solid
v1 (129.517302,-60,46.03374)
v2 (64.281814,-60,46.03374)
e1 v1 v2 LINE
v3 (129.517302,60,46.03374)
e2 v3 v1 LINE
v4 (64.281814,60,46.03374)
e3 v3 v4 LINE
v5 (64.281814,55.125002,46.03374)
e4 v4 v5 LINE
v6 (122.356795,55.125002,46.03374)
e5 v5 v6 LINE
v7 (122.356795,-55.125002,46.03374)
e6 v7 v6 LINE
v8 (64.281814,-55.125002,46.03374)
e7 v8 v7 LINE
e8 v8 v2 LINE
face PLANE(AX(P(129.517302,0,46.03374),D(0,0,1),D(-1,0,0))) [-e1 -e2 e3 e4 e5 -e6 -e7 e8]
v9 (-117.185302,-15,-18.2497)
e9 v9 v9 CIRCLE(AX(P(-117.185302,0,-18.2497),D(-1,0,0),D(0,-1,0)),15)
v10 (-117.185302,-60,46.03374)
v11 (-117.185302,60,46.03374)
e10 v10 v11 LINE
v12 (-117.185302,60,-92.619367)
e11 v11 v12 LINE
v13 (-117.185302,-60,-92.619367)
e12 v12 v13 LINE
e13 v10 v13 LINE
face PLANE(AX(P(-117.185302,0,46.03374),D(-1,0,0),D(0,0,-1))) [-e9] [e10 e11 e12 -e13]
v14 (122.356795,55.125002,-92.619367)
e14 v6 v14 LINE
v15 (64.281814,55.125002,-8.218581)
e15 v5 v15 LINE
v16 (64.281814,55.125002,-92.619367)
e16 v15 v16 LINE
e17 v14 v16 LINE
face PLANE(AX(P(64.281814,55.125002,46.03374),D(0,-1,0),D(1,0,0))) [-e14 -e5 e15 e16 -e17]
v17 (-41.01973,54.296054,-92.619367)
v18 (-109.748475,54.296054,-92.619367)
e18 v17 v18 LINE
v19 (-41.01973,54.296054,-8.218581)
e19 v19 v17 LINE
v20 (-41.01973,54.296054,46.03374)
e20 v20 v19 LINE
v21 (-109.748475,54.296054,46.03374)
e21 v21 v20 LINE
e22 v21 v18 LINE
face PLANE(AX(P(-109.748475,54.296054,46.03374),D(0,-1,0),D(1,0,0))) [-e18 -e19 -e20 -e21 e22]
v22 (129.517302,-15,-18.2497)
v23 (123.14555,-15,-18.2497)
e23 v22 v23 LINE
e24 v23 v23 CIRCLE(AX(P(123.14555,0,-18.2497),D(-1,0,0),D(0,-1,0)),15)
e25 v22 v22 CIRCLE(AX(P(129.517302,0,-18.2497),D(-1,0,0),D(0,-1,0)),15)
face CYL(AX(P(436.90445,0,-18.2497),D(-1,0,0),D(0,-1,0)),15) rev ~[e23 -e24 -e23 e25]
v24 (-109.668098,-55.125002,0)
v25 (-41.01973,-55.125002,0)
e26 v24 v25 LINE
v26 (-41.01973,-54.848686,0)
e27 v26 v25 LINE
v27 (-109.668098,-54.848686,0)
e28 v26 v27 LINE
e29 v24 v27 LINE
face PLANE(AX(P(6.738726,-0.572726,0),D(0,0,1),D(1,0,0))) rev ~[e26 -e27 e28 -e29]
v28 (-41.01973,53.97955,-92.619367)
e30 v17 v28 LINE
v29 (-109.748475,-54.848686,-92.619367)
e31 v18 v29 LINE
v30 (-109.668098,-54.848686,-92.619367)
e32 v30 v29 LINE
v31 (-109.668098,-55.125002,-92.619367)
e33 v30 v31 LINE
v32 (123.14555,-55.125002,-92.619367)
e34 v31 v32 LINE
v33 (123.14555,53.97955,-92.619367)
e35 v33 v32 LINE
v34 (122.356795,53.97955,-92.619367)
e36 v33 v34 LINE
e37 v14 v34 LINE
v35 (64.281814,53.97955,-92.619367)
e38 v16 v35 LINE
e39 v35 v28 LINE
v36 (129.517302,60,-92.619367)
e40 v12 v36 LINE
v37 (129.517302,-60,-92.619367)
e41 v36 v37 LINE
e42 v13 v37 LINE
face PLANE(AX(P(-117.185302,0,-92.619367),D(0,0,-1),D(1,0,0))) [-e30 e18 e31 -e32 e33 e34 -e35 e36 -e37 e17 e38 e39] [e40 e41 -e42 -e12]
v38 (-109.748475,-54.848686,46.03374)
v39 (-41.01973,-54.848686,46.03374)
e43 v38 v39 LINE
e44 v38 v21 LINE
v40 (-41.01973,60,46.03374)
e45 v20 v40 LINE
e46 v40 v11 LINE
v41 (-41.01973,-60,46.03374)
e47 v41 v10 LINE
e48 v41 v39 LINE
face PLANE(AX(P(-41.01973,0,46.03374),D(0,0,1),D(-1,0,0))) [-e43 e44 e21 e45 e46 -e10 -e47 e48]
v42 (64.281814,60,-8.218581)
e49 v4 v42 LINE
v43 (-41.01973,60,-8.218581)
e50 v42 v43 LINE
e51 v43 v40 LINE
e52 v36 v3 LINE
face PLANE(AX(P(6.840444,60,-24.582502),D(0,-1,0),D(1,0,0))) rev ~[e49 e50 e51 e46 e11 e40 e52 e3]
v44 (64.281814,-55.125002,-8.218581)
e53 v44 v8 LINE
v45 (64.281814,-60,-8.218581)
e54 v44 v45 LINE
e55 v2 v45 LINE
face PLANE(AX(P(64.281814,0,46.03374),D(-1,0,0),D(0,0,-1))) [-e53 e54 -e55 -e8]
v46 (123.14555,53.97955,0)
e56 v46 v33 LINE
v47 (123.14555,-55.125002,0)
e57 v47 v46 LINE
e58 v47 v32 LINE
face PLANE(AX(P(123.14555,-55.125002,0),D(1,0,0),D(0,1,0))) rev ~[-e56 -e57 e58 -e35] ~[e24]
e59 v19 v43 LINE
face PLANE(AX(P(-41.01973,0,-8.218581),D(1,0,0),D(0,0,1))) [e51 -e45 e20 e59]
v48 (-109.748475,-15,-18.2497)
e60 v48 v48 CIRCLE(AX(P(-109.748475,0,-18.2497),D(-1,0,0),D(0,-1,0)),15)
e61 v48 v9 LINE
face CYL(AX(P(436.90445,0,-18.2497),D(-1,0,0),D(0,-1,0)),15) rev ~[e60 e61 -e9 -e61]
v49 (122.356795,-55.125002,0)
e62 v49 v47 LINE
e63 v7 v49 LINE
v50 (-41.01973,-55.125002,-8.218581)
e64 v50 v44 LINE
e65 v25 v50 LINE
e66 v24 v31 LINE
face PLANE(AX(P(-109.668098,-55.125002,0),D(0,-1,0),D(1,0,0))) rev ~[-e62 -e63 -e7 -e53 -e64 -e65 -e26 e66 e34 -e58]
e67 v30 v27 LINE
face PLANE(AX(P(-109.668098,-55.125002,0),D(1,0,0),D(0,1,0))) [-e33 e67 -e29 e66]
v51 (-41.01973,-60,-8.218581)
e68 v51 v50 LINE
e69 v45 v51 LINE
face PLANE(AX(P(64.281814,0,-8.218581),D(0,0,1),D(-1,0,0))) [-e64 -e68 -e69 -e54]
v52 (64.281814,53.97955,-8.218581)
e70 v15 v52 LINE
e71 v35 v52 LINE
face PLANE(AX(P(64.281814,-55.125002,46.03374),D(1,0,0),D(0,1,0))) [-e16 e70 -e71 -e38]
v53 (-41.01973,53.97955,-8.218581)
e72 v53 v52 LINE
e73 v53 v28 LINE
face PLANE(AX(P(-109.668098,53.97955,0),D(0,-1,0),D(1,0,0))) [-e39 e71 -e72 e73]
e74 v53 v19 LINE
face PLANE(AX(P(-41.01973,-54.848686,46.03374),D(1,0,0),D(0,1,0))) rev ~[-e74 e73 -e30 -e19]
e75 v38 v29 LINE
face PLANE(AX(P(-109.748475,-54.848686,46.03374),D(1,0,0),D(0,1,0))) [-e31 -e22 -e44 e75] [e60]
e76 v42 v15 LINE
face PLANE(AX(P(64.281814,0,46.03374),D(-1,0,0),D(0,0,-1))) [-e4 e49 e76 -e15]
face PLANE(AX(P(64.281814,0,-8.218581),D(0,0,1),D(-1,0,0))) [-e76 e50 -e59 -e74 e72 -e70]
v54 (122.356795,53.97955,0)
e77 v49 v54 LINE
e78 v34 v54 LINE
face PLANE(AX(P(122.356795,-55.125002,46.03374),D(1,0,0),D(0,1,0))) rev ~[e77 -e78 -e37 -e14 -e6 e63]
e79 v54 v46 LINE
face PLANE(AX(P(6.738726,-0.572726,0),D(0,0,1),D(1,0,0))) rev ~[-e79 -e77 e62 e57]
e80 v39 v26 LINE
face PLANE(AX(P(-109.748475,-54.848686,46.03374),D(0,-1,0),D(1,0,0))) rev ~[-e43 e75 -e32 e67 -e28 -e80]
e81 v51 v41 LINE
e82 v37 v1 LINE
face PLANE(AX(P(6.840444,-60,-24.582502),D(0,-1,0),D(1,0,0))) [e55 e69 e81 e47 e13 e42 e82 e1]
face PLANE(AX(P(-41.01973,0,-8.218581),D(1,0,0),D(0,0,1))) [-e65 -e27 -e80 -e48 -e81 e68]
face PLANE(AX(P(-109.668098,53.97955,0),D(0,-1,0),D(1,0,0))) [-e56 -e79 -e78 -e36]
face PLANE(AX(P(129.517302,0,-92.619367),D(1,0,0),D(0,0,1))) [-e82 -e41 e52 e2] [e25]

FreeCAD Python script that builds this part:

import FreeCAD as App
import Part
import Sketcher
from FreeCAD import Vector
Q = App.Units.Quantity

doc = App.newDocument("Part")
body = doc.addObject("PartDesign::Body", "Body")

# Sketch on XZ plane
sketch1 = body.newObject("Sketcher::SketchObject", "Sketch")
sketch1.AttachmentSupport = (doc.getObject("XZ_Plane"), [""])
sketch1.MapMode = "FlatFace"
sketch1.addGeometry(Part.LineSegment(Vector(-117, 46, 0), Vector(-117, -93, 0)), False)
sketch1.addGeometry(Part.LineSegment(Vector(-117, -93, 0), Vector(130, -93, 0)), False)
sketch1.addGeometry(Part.LineSegment(Vector(130, -93, 0), Vector(130, 46, 0)), False)
sketch1.addGeometry(Part.LineSegment(Vector(130, 46, 0), Vector(64, 46, 0)), False)
sketch1.addGeometry(Part.LineSegment(Vector(64, 46, 0), Vector(64, -8, 0)), False)
sketch1.addGeometry(Part.LineSegment(Vector(64, -8, 0), Vector(-41, -8, 0)), False)
sketch1.addGeometry(Part.LineSegment(Vector(-41, -8, 0), Vector(-41, 46, 0)), False)
sketch1.addGeometry(Part.LineSegment(Vector(-41, 46, 0), Vector(-117, 46, 0)), False)
sketch1.addConstraint(Sketcher.Constraint("Coincident", 0, 2, 1, 1))
sketch1.addConstraint(Sketcher.Constraint("Coincident", 1, 2, 2, 1))
sketch1.addConstraint(Sketcher.Constraint("Coincident", 2, 2, 3, 1))
sketch1.addConstraint(Sketcher.Constraint("Coincident", 3, 2, 4, 1))
sketch1.addConstraint(Sketcher.Constraint("Coincident", 4, 2, 5, 1))
sketch1.addConstraint(Sketcher.Constraint("Coincident", 5, 2, 6, 1))
sketch1.addConstraint(Sketcher.Constraint("Coincident", 6, 2, 7, 1))
sketch1.addConstraint(Sketcher.Constraint("Coincident", 7, 2, 0, 1))
sketch1.addConstraint(Sketcher.Constraint("Vertical", 0))
sketch1.addConstraint(Sketcher.Constraint("Horizontal", 1))
sketch1.addConstraint(Sketcher.Constraint("Vertical", 2))
sketch1.addConstraint(Sketcher.Constraint("Horizontal", 3))
sketch1.addConstraint(Sketcher.Constraint("Vertical", 4))
sketch1.addConstraint(Sketcher.Constraint("Horizontal", 5))
sketch1.addConstraint(Sketcher.Constraint("Vertical", 6))
sketch1.addConstraint(Sketcher.Constraint("Horizontal", 7))
sketch1.addConstraint(Sketcher.Constraint("Horizontal", 3, 2, 6, 2))
sketch1.addConstraint(Sketcher.Constraint("DistanceX", 3, 2, 3, 1, Q("65.235488 mm")))
sketch1.addConstraint(Sketcher.Constraint("DistanceX", 7, 2, 7, 1, Q("76.165572 mm")))
sketch1.addConstraint(Sketcher.Constraint("DistanceY", 4, 2, 4, 1, Q("54.252321 mm")))
sketch1.addConstraint(Sketcher.Constraint("DistanceX", -1, 1, 1, 2, Q("129.517302 mm")))
sketch1.addConstraint(Sketcher.Constraint("DistanceX", 1, 1, 1, 2, Q("246.702604 mm")))
sketch1.addConstraint(Sketcher.Constraint("DistanceY", 0, 2, 0, 1, Q("138.653107 mm")))
sketch1.addConstraint(Sketcher.Constraint("DistanceY", -1, 1, 2, 2, Q("46.03374 mm")))
pad1 = body.newObject("PartDesign::Pad", "Pad")
pad1.Profile = sketch1
pad1.Length = 120
pad1.Midplane = True

# Sketch on XY plane
sketch2 = body.newObject("Sketcher::SketchObject", "Sketch001")
sketch2.AttachmentSupport = (doc.getObject("XY_Plane"), [""])
sketch2.MapMode = "FlatFace"
sketch2.AttachmentOffset = App.Placement(Vector(0, 0, 46.03374), App.Rotation())
sketch2.addGeometry(Part.LineSegment(Vector(-110, 54, 0), Vector(-110, -55, 0)), False)
sketch2.addGeometry(Part.LineSegment(Vector(-110, -55, 0), Vector(-41, -55, 0)), False)
sketch2.addGeometry(Part.LineSegment(Vector(-41, -55, 0), Vector(-41, 54, 0)), False)
sketch2.addGeometry(Part.LineSegment(Vector(-41, 54, 0), Vector(-110, 54, 0)), False)
sketch2.addConstraint(Sketcher.Constraint("Coincident", 0, 2, 1, 1))
sketch2.addConstraint(Sketcher.Constraint("Coincident", 1, 2, 2, 1))
sketch2.addConstraint(Sketcher.Constraint("Coincident", 2, 2, 3, 1))
sketch2.addConstraint(Sketcher.Constraint("Coincident", 3, 2, 0, 1))
sketch2.addConstraint(Sketcher.Constraint("Vertical", 0))
sketch2.addConstraint(Sketcher.Constraint("Horizontal", 1))
sketch2.addConstraint(Sketcher.Constraint("Vertical", 2))
sketch2.addConstraint(Sketcher.Constraint("Horizontal", 3))
sketch2.addConstraint(Sketcher.Constraint("DistanceY", 0, 2, 0, 1, Q("109.14474 mm")))
sketch2.addConstraint(Sketcher.Constraint("DistanceX", 1, 1, 1, 2, Q("68.728745 mm")))
sketch2.addConstraint(Sketcher.Constraint("DistanceX", 1, 2, -1, 1, Q("41.01973 mm")))
sketch2.addConstraint(Sketcher.Constraint("DistanceY", 0, 2, -1, 1, Q("54.848686 mm")))
pocket1 = body.newObject("PartDesign::Pocket", "Pocket")
pocket1.Profile = sketch2
pocket1.Length = 150.7

# Sketch on XY plane
sketch3 = body.newObject("Sketcher::SketchObject", "Sketch002")
sketch3.AttachmentSupport = (doc.getObject("XY_Plane"), [""])
sketch3.MapMode = "FlatFace"
sketch3.addGeometry(Part.LineSegment(Vector(-110, 54, 0), Vector(-110, -55, 0)), False)
sketch3.addGeometry(Part.LineSegment(Vector(-110, -55, 0), Vector(123, -55, 0)), False)
sketch3.addGeometry(Part.LineSegment(Vector(123, -55, 0), Vector(123, 54, 0)), False)
sketch3.addGeometry(Part.LineSegment(Vector(123, 54, 0), Vector(-110, 54, 0)), False)
sketch3.addConstraint(Sketcher.Constraint("Coincident", 0, 2, 1, 1))
sketch3.addConstraint(Sketcher.Constraint("Coincident", 1, 2, 2, 1))
sketch3.addConstraint(Sketcher.Constraint("Coincident", 2, 2, 3, 1))
sketch3.addConstraint(Sketcher.Constraint("Coincident", 3, 2, 0, 1))
sketch3.addConstraint(Sketcher.Constraint("Vertical", 0))
sketch3.addConstraint(Sketcher.Constraint("Horizontal", 1))
sketch3.addConstraint(Sketcher.Constraint("Vertical", 2))
sketch3.addConstraint(Sketcher.Constraint("Horizontal", 3))
sketch3.addConstraint(Sketcher.Constraint("DistanceY", 0, 2, -1, 1, Q("55.125002 mm")))
sketch3.addConstraint(Sketcher.Constraint("DistanceX", 1, 1, 1, 2, Q("232.813649 mm")))
sketch3.addConstraint(Sketcher.Constraint("DistanceY", 0, 2, 0, 1, Q("109.104551 mm")))
sketch3.addConstraint(Sketcher.Constraint("DistanceX", 0, 2, -1, 1, Q("109.668098 mm")))
pocket2 = body.newObject("PartDesign::Pocket", "Pocket001")
pocket2.Profile = sketch3
pocket2.Length = 101.1

# Sketch on XY plane
sketch4 = body.newObject("Sketcher::SketchObject", "Sketch003")
sketch4.AttachmentSupport = (doc.getObject("XY_Plane"), [""])
sketch4.MapMode = "FlatFace"
sketch4.AttachmentOffset = App.Placement(Vector(0, 0, 46.03374), App.Rotation())
sketch4.addGeometry(Part.LineSegment(Vector(64, 55, 0), Vector(64, -55, 0)), False)
sketch4.addGeometry(Part.LineSegment(Vector(64, -55, 0), Vector(122, -55, 0)), False)
sketch4.addGeometry(Part.LineSegment(Vector(122, -55, 0), Vector(122, 55, 0)), False)
sketch4.addGeometry(Part.LineSegment(Vector(122, 55, 0), Vector(64, 55, 0)), False)
sketch4.addConstraint(Sketcher.Constraint("Coincident", 0, 2, 1, 1))
sketch4.addConstraint(Sketcher.Constraint("Coincident", 1, 2, 2, 1))
sketch4.addConstraint(Sketcher.Constraint("Coincident", 2, 2, 3, 1))
sketch4.addConstraint(Sketcher.Constraint("Coincident", 3, 2, 0, 1))
sketch4.addConstraint(Sketcher.Constraint("Vertical", 0))
sketch4.addConstraint(Sketcher.Constraint("Horizontal", 1))
sketch4.addConstraint(Sketcher.Constraint("Vertical", 2))
sketch4.addConstraint(Sketcher.Constraint("Horizontal", 3))
sketch4.addConstraint(Sketcher.Constraint("DistanceY", 0, 2, -1, 1, Q("55.125002 mm")))
sketch4.addConstraint(Sketcher.Constraint("DistanceY", -1, 1, 2, 2, Q("55.125002 mm")))
sketch4.addConstraint(Sketcher.Constraint("DistanceX", 1, 1, 1, 2, Q("58.074981 mm")))
sketch4.addConstraint(Sketcher.Constraint("DistanceX", -1, 1, 0, 2, Q("64.281814 mm")))
pocket3 = body.newObject("PartDesign::Pocket", "Pocket002")
pocket3.Profile = sketch4
pocket3.Length = 147.8

# Sketch on YZ plane
sketch5 = body.newObject("Sketcher::SketchObject", "Sketch004")
sketch5.AttachmentSupport = (doc.getObject("YZ_Plane"), [""])
sketch5.MapMode = "FlatFace"
sketch5.AttachmentOffset = App.Placement(Vector(0, 0, 129.517302), App.Rotation())
sketch5.addGeometry(Part.Circle(Vector(0, -18, 0), Vector(0, 0, 1), 15), False)
sketch5.addConstraint(Sketcher.Constraint("PointOnObject", 0, 3, -2))
sketch5.addConstraint(Sketcher.Constraint("Diameter", 0, Q("30 mm")))
sketch5.addConstraint(Sketcher.Constraint("DistanceY", 0, 3, -1, 1, Q("18.2497 mm")))
doc.recompute()
hole = body.newObject("PartDesign::Hole", "Hole")
hole.Profile = sketch5
hole.ThreadType = "None"
hole.Diameter = 30
hole.DepthType = "ThroughAll"

doc.recompute()
